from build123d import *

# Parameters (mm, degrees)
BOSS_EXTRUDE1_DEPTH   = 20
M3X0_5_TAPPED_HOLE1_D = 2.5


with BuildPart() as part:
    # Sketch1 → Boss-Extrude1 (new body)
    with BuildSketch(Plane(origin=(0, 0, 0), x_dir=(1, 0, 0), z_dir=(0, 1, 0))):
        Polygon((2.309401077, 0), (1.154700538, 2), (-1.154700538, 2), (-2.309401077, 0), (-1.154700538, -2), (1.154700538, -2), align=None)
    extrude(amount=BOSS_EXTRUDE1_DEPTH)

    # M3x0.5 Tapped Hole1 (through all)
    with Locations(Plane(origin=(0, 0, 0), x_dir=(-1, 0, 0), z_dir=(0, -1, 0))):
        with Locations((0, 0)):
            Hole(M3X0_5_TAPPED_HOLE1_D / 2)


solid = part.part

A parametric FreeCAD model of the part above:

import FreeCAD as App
import Part
import Sketcher

V = App.Vector
Q = App.Units.Quantity

doc = App.newDocument("Part")
body = doc.addObject("PartDesign::Body", "Body")

sketch1 = doc.addObject("Sketcher::SketchObject", "Sketch")
body.addObject(sketch1)
sketch1.AttachmentSupport = (doc.XZ_Plane, [""])
sketch1.MapMode = "FlatFace"
sketch1.addGeometry(Part.LineSegment(V(2.3, 0, 0), V(1.2, -2, 0)), False)
sketch1.addGeometry(Part.LineSegment(V(1.2, -2, 0), V(-1.2, -2, 0)), False)
sketch1.addGeometry(Part.LineSegment(V(-1.2, -2, 0), V(-2.3, 0, 0)), False)
sketch1.addGeometry(Part.LineSegment(V(-2.3, 0, 0), V(-1.2, 2, 0)), False)
sketch1.addGeometry(Part.LineSegment(V(-1.2, 2, 0), V(1.2, 2, 0)), False)
sketch1.addGeometry(Part.LineSegment(V(1.2, 2, 0), V(2.3, 0, 0)), False)
sketch1.addConstraint(Sketcher.Constraint("Coincident", 0, 2, 1, 1))
sketch1.addConstraint(Sketcher.Constraint("Coincident", 1, 2, 2, 1))
sketch1.addConstraint(Sketcher.Constraint("Coincident", 2, 2, 3, 1))
sketch1.addConstraint(Sketcher.Constraint("Coincident", 3, 2, 4, 1))
sketch1.addConstraint(Sketcher.Constraint("Coincident", 4, 2, 5, 1))
sketch1.addConstraint(Sketcher.Constraint("Coincident", 5, 2, 0, 1))
sketch1.addConstraint(Sketcher.Constraint("Horizontal", 1))
sketch1.addConstraint(Sketcher.Constraint("Horizontal", 4))
sketch1.addConstraint(Sketcher.Constraint("Symmetric", 0, 2, 3, 2, -1, 1))
sketch1.addConstraint(Sketcher.Constraint("Symmetric", 2, 2, 5, 2, -1, 1))
sketch1.addConstraint(Sketcher.Constraint("PointOnObject", 2, 2, -1))
sketch1.addConstraint(Sketcher.Constraint("Parallel", 2, 5))
sketch1.addConstraint(Sketcher.Constraint("Vertical", 1, 2, 3, 2))
sketch1.addConstraint(Sketcher.Constraint("Angle", 0, Q("-120 deg")))
sketch1.addConstraint(Sketcher.Constraint("DistanceY", 0, 2, -1, 1, Q("2 mm")))
sketch1.addConstraint(Sketcher.Constraint("DistanceX", 1, 2, 1, 1, Q("2.309401 mm")))
pad1 = doc.addObject("PartDesign::Pad", "Pad")
body.addObject(pad1)
pad1.Profile = sketch1
pad1.Length = 20
pad1.Reversed = True

sketch2 = doc.addObject("Sketcher::SketchObject", "Sketch001")
body.addObject(sketch2)
sketch2.AttachmentSupport = (doc.XZ_Plane, [""])
sketch2.MapMode = "FlatFace"
sketch2.addGeometry(Part.Circle(V(0, 0, 0), V(0, 0, 1), 1.2), False)
sketch2.addConstraint(Sketcher.Constraint("Coincident", 0, 3, -1, 1))
sketch2.addConstraint(Sketcher.Constraint("Diameter", 0, Q("2.5 mm")))
doc.recompute()
hole = doc.addObject("PartDesign::Hole", "Hole")
body.addObject(hole)
hole.Profile = sketch2
hole.ThreadType = "None"
hole.Diameter = 2.5
hole.DepthType = "ThroughAll"

doc.recompute()
